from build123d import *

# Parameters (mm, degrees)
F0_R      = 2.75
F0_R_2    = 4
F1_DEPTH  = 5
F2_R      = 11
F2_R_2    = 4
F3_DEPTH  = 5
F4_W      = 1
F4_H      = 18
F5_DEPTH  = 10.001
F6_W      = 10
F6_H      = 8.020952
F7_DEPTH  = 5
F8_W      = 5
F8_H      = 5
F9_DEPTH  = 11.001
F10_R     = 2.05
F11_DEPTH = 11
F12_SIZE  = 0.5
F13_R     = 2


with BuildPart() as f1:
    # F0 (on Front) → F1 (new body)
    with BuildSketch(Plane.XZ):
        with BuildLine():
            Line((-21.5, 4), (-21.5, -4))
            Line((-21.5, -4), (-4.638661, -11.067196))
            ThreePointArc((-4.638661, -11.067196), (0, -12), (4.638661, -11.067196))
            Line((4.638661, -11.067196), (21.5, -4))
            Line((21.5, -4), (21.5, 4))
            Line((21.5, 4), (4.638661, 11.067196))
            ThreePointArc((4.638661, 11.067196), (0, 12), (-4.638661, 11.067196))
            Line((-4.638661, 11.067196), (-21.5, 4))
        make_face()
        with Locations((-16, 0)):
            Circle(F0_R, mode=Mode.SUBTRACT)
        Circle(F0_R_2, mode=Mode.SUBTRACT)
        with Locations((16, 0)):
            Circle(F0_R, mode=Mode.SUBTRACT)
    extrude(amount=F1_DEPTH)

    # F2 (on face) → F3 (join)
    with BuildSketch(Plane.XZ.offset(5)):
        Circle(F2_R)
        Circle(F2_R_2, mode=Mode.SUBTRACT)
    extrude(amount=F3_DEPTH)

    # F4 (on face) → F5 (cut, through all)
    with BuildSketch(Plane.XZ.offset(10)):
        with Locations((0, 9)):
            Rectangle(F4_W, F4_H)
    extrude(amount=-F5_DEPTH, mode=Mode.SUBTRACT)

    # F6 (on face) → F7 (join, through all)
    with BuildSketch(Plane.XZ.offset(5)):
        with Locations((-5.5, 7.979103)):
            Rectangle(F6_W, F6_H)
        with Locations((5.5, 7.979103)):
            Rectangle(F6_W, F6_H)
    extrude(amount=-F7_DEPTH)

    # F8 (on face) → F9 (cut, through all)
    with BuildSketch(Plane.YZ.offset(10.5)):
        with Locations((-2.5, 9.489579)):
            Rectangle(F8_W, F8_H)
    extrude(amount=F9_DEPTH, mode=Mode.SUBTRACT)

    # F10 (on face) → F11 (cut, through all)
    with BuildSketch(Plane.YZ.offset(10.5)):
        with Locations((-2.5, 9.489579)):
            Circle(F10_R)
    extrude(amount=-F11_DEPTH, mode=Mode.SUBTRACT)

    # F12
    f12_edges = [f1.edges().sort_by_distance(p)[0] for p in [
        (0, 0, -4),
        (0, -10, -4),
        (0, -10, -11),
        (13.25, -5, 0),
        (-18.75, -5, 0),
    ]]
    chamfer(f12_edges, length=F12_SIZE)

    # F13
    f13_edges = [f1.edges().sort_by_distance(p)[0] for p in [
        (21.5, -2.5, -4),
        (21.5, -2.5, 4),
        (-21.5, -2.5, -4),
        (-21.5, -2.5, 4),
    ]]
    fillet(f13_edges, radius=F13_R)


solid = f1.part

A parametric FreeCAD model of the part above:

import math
import FreeCAD as App
import Part
import Sketcher

V = App.Vector
Q = App.Units.Quantity


def edges_at(feature, points):
    """Names of the edges that pass closest to the given points."""
    edges = feature.Shape.Edges
    near = lambda p: min(range(len(edges)), key=lambda i: edges[i].distToShape(Part.Vertex(*p))[0])
    return sorted({f"Edge{near(p) + 1}" for p in points})

doc = App.newDocument("Part")
params = doc.addObject("Spreadsheet::Sheet", "Params")
for row, (alias, value) in enumerate([
    ("sketch1_diameter", "8 mm"),
    ("sketch1_radius", "12.000002 mm"),
    ("sketch1_diameter2", "5.5 mm"),
    ("sketch1_height", "8 mm"),
    ("pad1_length", "5 mm"),
    ("sketch2_diameter", "22 mm"),
    ("sketch2_diameter2", "8 mm"),
    ("pad2_length", "5 mm"),
    ("sketch3_width", "1 mm"),
    ("sketch3_height", "18 mm"),
    ("sketch4_width", "10 mm"),
    ("pad3_length", "5 mm"),
    ("sketch5_width", "5 mm"),
    ("sketch6_diameter", "4.1 mm"),
    ("pocket3_length", "11 mm"),
    ("chamfer_size", "0.5 mm"),
    ("fillet_radius", "2 mm"),
], start=1):
    params.set(f"A{row}", alias)
    params.set(f"B{row}", "=" + value)
    params.setAlias(f"B{row}", alias)

body = doc.addObject("PartDesign::Body", "Body")

# Sketch on XZ plane
sketch1 = doc.addObject("Sketcher::SketchObject", "Sketch")
body.addObject(sketch1)
sketch1.AttachmentSupport = (doc.XZ_Plane, [""])
sketch1.MapMode = "FlatFace"
sketch1.addGeometry([
    Part.LineSegment(V(-21.5, 4, 0), V(-21.5, -4, 0)),  # 0
    Part.LineSegment(V(-21.5, -4, 0), V(-4.6, -11.1, 0)),  # 1
    Part.ArcOfCircle(Part.Circle(V(0, 0, 0), V(0, 0, 1), 12), math.radians(-113), math.radians(-67)),  # 2
    Part.LineSegment(V(4.6, -11.1, 0), V(21.5, -4, 0)),  # 3
    Part.LineSegment(V(21.5, -4, 0), V(21.5, 4, 0)),  # 4
    Part.LineSegment(V(21.5, 4, 0), V(4.6, 11.1, 0)),  # 5
    Part.ArcOfCircle(Part.Circle(V(0, 0, 0), V(0, 0, 1), 12), math.radians(67), math.radians(113)),  # 6
    Part.LineSegment(V(-4.6, 11.1, 0), V(-21.5, 4, 0)),  # 7
    Part.Circle(V(-16, 0, 0), V(0, 0, 1), 2.8),  # 8
    Part.Circle(V(0, 0, 0), V(0, 0, 1), 4),  # 9
    Part.Circle(V(16, 0, 0), V(0, 0, 1), 2.8),  # 10
], False)
sketch1.addConstraint([
    Sketcher.Constraint("Coincident", 0, 2, 1, 1),
    Sketcher.Constraint("Tangent", 1, 2, 2, 1),
    Sketcher.Constraint("Tangent", 2, 2, 3, 1),
    Sketcher.Constraint("Coincident", 3, 2, 4, 1),
    Sketcher.Constraint("Coincident", 4, 2, 5, 1),
    Sketcher.Constraint("Tangent", 5, 2, 6, 1),
    Sketcher.Constraint("Tangent", 6, 2, 7, 1),
    Sketcher.Constraint("Coincident", 7, 2, 0, 1),
    Sketcher.Constraint("Vertical", 0),
    Sketcher.Constraint("Vertical", 4),
    Sketcher.Constraint("Coincident", 2, 3, -1, 1),
    Sketcher.Constraint("Coincident", 6, 3, -1, 1),
    Sketcher.Constraint("Coincident", 9, 3, -1, 1),
    Sketcher.Constraint("Equal", 2, 6),
    Sketcher.Constraint("Equal", 8, 10),
    Sketcher.Constraint("Symmetric", 8, 3, 10, 3, -1, 1),
    Sketcher.Constraint("Symmetric", 0, 2, 4, 2, -1, 1),
    Sketcher.Constraint("PointOnObject", 8, 3, -1),
    Sketcher.Constraint("Parallel", 3, 7),
    Sketcher.Constraint("Horizontal", 1, 2, 2, 2),
    Sketcher.Constraint("Diameter", 9, Q("8 mm")),
    Sketcher.Constraint("Radius", 2, Q("12.000002 mm")),
    Sketcher.Constraint("Diameter", 8, Q("5.5 mm")),
    Sketcher.Constraint("DistanceY", 0, 2, 0, 1, Q("8 mm")),
    Sketcher.Constraint("DistanceX", 8, 3, -1, 1, Q("16 mm")),
    Sketcher.Constraint("DistanceX", 0, 2, -1, 1, Q("21.5 mm")),
])
sketch1.setExpression("Constraints[20]", "Params.sketch1_diameter")
sketch1.setExpression("Constraints[21]", "Params.sketch1_radius")
sketch1.setExpression("Constraints[22]", "Params.sketch1_diameter2")
sketch1.setExpression("Constraints[23]", "Params.sketch1_height")
pad1 = doc.addObject("PartDesign::Pad", "Pad")
body.addObject(pad1)
pad1.Profile = sketch1
pad1.setExpression("Length", "Params.pad1_length")

# Sketch on XZ plane
sketch2 = doc.addObject("Sketcher::SketchObject", "Sketch001")
body.addObject(sketch2)
sketch2.AttachmentSupport = (doc.XZ_Plane, [""])
sketch2.MapMode = "FlatFace"
sketch2.AttachmentOffset = App.Placement(V(0, 0, 5), App.Rotation())
sketch2.addGeometry([
    Part.Circle(V(0, 0, 0), V(0, 0, 1), 11),
    Part.Circle(V(0, 0, 0), V(0, 0, 1), 4),
], False)
sketch2.addConstraint([
    Sketcher.Constraint("Coincident", 0, 3, -1, 1),
    Sketcher.Constraint("Coincident", 1, 3, -1, 1),
    Sketcher.Constraint("Diameter", 0, Q("22 mm")),
    Sketcher.Constraint("Diameter", 1, Q("8 mm")),
])
sketch2.setExpression("Constraints[2]", "Params.sketch2_diameter")
sketch2.setExpression("Constraints[3]", "Params.sketch2_diameter2")
pad2 = doc.addObject("PartDesign::Pad", "Pad001")
body.addObject(pad2)
pad2.Profile = sketch2
pad2.setExpression("Length", "Params.pad2_length")

# Sketch on XZ plane
sketch3 = doc.addObject("Sketcher::SketchObject", "Sketch002")
body.addObject(sketch3)
sketch3.AttachmentSupport = (doc.XZ_Plane, [""])
sketch3.MapMode = "FlatFace"
sketch3.AttachmentOffset = App.Placement(V(0, 0, 10), App.Rotation())
sketch3.addGeometry([
    Part.LineSegment(V(-0.5, 18, 0), V(-0.5, 0, 0)),
    Part.LineSegment(V(-0.5, 0, 0), V(0.5, 0, 0)),
    Part.LineSegment(V(0.5, 0, 0), V(0.5, 18, 0)),
    Part.LineSegment(V(0.5, 18, 0), V(-0.5, 18, 0)),
], False)
sketch3.addConstraint([
    Sketcher.Constraint("Coincident", 0, 2, 1, 1),
    Sketcher.Constraint("Coincident", 1, 2, 2, 1),
    Sketcher.Constraint("Coincident", 2, 2, 3, 1),
    Sketcher.Constraint("Coincident", 3, 2, 0, 1),
    Sketcher.Constraint("Vertical", 0),
    Sketcher.Constraint("Horizontal", 1),
    Sketcher.Constraint("Vertical", 2),
    Sketcher.Constraint("Horizontal", 3),
    Sketcher.Constraint("Symmetric", 0, 2, 1, 2, -1, 1),
    Sketcher.Constraint("DistanceX", 1, 1, 1, 2, Q("1 mm")),
    Sketcher.Constraint("DistanceY", 0, 2, 0, 1, Q("18 mm")),
])
sketch3.setExpression("Constraints[9]", "Params.sketch3_width")
sketch3.setExpression("Constraints[10]", "Params.sketch3_height")
pocket1 = doc.addObject("PartDesign::Pocket", "Pocket")
body.addObject(pocket1)
pocket1.Profile = sketch3
pocket1.Type = "ThroughAll"

# Sketch on XZ plane
sketch4 = doc.addObject("Sketcher::SketchObject", "Sketch003")
body.addObject(sketch4)
sketch4.AttachmentSupport = (doc.XZ_Plane, [""])
sketch4.MapMode = "FlatFace"
sketch4.AttachmentOffset = App.Placement(V(0, 0, 5), App.Rotation())
sketch4.addGeometry([
    Part.LineSegment(V(-10.5, 11.989579, 0), V(-10.5, 3.968627, 0)),  # 0
    Part.LineSegment(V(-10.5, 3.968627, 0), V(-0.5, 3.968627, 0)),  # 1
    Part.LineSegment(V(-0.5, 3.968627, 0), V(-0.5, 11.989579, 0)),  # 2
    Part.LineSegment(V(-0.5, 11.989579, 0), V(-10.5, 11.989579, 0)),  # 3
    Part.LineSegment(V(0.5, 11.989579, 0), V(0.5, 3.968627, 0)),  # 4
    Part.LineSegment(V(0.5, 3.968627, 0), V(10.5, 3.968627, 0)),  # 5
    Part.LineSegment(V(10.5, 3.968627, 0), V(10.5, 11.989579, 0)),  # 6
    Part.LineSegment(V(10.5, 11.989579, 0), V(0.5, 11.989579, 0)),  # 7
], False)
sketch4.addConstraint([
    Sketcher.Constraint("Coincident", 0, 2, 1, 1),
    Sketcher.Constraint("Coincident", 1, 2, 2, 1),
    Sketcher.Constraint("Coincident", 2, 2, 3, 1),
    Sketcher.Constraint("Coincident", 3, 2, 0, 1),
    Sketcher.Constraint("Coincident", 4, 2, 5, 1),
    Sketcher.Constraint("Coincident", 5, 2, 6, 1),
    Sketcher.Constraint("Coincident", 6, 2, 7, 1),
    Sketcher.Constraint("Coincident", 7, 2, 4, 1),
    Sketcher.Constraint("Vertical", 0),
    Sketcher.Constraint("Horizontal", 1),
    Sketcher.Constraint("Vertical", 2),
    Sketcher.Constraint("Horizontal", 3),
    Sketcher.Constraint("Vertical", 4),
    Sketcher.Constraint("Horizontal", 5),
    Sketcher.Constraint("Vertical", 6),
    Sketcher.Constraint("Horizontal", 7),
    Sketcher.Constraint("Symmetric", 1, 2, 4, 2, -2),
    Sketcher.Constraint("Symmetric", 3, 2, 6, 2, -2),
    Sketcher.Constraint("DistanceX", 1, 1, 1, 2, Q("10 mm")),
    Sketcher.Constraint("DistanceX", 1, 2, 4, 2, Q("1 mm")),
    Sketcher.Constraint("DistanceY", 0, 2, 0, 1, Q("8.020952 mm")),
    Sketcher.Constraint("DistanceY", -1, 1, 2, 2, Q("11.989579 mm")),
])
sketch4.setExpression("Constraints[18]", "Params.sketch4_width")
pad3 = doc.addObject("PartDesign::Pad", "Pad002")
body.addObject(pad3)
pad3.Profile = sketch4
pad3.setExpression("Length", "Params.pad3_length")
pad3.Reversed = True

# Sketch on YZ plane
sketch5 = doc.addObject("Sketcher::SketchObject", "Sketch004")
body.addObject(sketch5)
sketch5.AttachmentSupport = (doc.YZ_Plane, [""])
sketch5.MapMode = "FlatFace"
sketch5.AttachmentOffset = App.Placement(V(0, 0, 10.5), App.Rotation())
sketch5.addGeometry([
    Part.LineSegment(V(-5, 12, 0), V(-5, 7, 0)),
    Part.LineSegment(V(-5, 7, 0), V(0, 7, 0)),
    Part.LineSegment(V(0, 7, 0), V(0, 12, 0)),
    Part.LineSegment(V(0, 12, 0), V(-5, 12, 0)),
], False)
sketch5.addConstraint([
    Sketcher.Constraint("Coincident", 0, 2, 1, 1),
    Sketcher.Constraint("Coincident", 1, 2, 2, 1),
    Sketcher.Constraint("Coincident", 2, 2, 3, 1),
    Sketcher.Constraint("Coincident", 3, 2, 0, 1),
    Sketcher.Constraint("Vertical", 0),
    Sketcher.Constraint("Horizontal", 1),
    Sketcher.Constraint("Vertical", 2),
    Sketcher.Constraint("Horizontal", 3),
    Sketcher.Constraint("PointOnObject", 1, 2, -2),
    Sketcher.Constraint("Equal", 3, 0),
    Sketcher.Constraint("DistanceX", 1, 1, 1, 2, Q("5 mm")),
    Sketcher.Constraint("DistanceY", -1, 1, 0, 2, Q("6.989579 mm")),
])
sketch5.setExpression("Constraints[10]", "Params.sketch5_width")
pocket2 = doc.addObject("PartDesign::Pocket", "Pocket001")
body.addObject(pocket2)
pocket2.Profile = sketch5
pocket2.Type = "ThroughAll"
pocket2.Reversed = True

# Sketch on YZ plane
sketch6 = doc.addObject("Sketcher::SketchObject", "Sketch005")
body.addObject(sketch6)
sketch6.AttachmentSupport = (doc.YZ_Plane, [""])
sketch6.MapMode = "FlatFace"
sketch6.AttachmentOffset = App.Placement(V(0, 0, 10.5), App.Rotation())
sketch6.addGeometry(Part.Circle(V(-2.5, 9.5, 0), V(0, 0, 1), 2), False)
sketch6.addConstraint([
    Sketcher.Constraint("Diameter", 0, Q("4.1 mm")),
    Sketcher.Constraint("DistanceX", 0, 3, -1, 1, Q("2.5 mm")),
    Sketcher.Constraint("DistanceY", -1, 1, 0, 3, Q("9.489579 mm")),
])
sketch6.setExpression("Constraints[0]", "Params.sketch6_diameter")
pocket3 = doc.addObject("PartDesign::Pocket", "Pocket002")
body.addObject(pocket3)
pocket3.Profile = sketch6
pocket3.setExpression("Length", "Params.pocket3_length")
doc.recompute()

chamfer = doc.addObject("PartDesign::Chamfer", "Chamfer")
body.addObject(chamfer)
chamfer.Base = (pocket3, edges_at(pocket3, [
    (0, 0, -4),
    (0, -10, -4),
    (0, -10, -11),
    (13.25, -5, 0),
    (-18.75, -5, 0),
]))
chamfer.setExpression("Size", "Params.chamfer_size")
doc.recompute()

fillet = doc.addObject("PartDesign::Fillet", "Fillet")
body.addObject(fillet)
fillet.Base = (chamfer, edges_at(chamfer, [
    (21.5, -2.5, -4),
    (21.5, -2.5, 4),
    (-21.5, -2.5, -4),
    (-21.5, -2.5, 4),
]))
fillet.setExpression("Radius", "Params.fillet_radius")

doc.recompute()
